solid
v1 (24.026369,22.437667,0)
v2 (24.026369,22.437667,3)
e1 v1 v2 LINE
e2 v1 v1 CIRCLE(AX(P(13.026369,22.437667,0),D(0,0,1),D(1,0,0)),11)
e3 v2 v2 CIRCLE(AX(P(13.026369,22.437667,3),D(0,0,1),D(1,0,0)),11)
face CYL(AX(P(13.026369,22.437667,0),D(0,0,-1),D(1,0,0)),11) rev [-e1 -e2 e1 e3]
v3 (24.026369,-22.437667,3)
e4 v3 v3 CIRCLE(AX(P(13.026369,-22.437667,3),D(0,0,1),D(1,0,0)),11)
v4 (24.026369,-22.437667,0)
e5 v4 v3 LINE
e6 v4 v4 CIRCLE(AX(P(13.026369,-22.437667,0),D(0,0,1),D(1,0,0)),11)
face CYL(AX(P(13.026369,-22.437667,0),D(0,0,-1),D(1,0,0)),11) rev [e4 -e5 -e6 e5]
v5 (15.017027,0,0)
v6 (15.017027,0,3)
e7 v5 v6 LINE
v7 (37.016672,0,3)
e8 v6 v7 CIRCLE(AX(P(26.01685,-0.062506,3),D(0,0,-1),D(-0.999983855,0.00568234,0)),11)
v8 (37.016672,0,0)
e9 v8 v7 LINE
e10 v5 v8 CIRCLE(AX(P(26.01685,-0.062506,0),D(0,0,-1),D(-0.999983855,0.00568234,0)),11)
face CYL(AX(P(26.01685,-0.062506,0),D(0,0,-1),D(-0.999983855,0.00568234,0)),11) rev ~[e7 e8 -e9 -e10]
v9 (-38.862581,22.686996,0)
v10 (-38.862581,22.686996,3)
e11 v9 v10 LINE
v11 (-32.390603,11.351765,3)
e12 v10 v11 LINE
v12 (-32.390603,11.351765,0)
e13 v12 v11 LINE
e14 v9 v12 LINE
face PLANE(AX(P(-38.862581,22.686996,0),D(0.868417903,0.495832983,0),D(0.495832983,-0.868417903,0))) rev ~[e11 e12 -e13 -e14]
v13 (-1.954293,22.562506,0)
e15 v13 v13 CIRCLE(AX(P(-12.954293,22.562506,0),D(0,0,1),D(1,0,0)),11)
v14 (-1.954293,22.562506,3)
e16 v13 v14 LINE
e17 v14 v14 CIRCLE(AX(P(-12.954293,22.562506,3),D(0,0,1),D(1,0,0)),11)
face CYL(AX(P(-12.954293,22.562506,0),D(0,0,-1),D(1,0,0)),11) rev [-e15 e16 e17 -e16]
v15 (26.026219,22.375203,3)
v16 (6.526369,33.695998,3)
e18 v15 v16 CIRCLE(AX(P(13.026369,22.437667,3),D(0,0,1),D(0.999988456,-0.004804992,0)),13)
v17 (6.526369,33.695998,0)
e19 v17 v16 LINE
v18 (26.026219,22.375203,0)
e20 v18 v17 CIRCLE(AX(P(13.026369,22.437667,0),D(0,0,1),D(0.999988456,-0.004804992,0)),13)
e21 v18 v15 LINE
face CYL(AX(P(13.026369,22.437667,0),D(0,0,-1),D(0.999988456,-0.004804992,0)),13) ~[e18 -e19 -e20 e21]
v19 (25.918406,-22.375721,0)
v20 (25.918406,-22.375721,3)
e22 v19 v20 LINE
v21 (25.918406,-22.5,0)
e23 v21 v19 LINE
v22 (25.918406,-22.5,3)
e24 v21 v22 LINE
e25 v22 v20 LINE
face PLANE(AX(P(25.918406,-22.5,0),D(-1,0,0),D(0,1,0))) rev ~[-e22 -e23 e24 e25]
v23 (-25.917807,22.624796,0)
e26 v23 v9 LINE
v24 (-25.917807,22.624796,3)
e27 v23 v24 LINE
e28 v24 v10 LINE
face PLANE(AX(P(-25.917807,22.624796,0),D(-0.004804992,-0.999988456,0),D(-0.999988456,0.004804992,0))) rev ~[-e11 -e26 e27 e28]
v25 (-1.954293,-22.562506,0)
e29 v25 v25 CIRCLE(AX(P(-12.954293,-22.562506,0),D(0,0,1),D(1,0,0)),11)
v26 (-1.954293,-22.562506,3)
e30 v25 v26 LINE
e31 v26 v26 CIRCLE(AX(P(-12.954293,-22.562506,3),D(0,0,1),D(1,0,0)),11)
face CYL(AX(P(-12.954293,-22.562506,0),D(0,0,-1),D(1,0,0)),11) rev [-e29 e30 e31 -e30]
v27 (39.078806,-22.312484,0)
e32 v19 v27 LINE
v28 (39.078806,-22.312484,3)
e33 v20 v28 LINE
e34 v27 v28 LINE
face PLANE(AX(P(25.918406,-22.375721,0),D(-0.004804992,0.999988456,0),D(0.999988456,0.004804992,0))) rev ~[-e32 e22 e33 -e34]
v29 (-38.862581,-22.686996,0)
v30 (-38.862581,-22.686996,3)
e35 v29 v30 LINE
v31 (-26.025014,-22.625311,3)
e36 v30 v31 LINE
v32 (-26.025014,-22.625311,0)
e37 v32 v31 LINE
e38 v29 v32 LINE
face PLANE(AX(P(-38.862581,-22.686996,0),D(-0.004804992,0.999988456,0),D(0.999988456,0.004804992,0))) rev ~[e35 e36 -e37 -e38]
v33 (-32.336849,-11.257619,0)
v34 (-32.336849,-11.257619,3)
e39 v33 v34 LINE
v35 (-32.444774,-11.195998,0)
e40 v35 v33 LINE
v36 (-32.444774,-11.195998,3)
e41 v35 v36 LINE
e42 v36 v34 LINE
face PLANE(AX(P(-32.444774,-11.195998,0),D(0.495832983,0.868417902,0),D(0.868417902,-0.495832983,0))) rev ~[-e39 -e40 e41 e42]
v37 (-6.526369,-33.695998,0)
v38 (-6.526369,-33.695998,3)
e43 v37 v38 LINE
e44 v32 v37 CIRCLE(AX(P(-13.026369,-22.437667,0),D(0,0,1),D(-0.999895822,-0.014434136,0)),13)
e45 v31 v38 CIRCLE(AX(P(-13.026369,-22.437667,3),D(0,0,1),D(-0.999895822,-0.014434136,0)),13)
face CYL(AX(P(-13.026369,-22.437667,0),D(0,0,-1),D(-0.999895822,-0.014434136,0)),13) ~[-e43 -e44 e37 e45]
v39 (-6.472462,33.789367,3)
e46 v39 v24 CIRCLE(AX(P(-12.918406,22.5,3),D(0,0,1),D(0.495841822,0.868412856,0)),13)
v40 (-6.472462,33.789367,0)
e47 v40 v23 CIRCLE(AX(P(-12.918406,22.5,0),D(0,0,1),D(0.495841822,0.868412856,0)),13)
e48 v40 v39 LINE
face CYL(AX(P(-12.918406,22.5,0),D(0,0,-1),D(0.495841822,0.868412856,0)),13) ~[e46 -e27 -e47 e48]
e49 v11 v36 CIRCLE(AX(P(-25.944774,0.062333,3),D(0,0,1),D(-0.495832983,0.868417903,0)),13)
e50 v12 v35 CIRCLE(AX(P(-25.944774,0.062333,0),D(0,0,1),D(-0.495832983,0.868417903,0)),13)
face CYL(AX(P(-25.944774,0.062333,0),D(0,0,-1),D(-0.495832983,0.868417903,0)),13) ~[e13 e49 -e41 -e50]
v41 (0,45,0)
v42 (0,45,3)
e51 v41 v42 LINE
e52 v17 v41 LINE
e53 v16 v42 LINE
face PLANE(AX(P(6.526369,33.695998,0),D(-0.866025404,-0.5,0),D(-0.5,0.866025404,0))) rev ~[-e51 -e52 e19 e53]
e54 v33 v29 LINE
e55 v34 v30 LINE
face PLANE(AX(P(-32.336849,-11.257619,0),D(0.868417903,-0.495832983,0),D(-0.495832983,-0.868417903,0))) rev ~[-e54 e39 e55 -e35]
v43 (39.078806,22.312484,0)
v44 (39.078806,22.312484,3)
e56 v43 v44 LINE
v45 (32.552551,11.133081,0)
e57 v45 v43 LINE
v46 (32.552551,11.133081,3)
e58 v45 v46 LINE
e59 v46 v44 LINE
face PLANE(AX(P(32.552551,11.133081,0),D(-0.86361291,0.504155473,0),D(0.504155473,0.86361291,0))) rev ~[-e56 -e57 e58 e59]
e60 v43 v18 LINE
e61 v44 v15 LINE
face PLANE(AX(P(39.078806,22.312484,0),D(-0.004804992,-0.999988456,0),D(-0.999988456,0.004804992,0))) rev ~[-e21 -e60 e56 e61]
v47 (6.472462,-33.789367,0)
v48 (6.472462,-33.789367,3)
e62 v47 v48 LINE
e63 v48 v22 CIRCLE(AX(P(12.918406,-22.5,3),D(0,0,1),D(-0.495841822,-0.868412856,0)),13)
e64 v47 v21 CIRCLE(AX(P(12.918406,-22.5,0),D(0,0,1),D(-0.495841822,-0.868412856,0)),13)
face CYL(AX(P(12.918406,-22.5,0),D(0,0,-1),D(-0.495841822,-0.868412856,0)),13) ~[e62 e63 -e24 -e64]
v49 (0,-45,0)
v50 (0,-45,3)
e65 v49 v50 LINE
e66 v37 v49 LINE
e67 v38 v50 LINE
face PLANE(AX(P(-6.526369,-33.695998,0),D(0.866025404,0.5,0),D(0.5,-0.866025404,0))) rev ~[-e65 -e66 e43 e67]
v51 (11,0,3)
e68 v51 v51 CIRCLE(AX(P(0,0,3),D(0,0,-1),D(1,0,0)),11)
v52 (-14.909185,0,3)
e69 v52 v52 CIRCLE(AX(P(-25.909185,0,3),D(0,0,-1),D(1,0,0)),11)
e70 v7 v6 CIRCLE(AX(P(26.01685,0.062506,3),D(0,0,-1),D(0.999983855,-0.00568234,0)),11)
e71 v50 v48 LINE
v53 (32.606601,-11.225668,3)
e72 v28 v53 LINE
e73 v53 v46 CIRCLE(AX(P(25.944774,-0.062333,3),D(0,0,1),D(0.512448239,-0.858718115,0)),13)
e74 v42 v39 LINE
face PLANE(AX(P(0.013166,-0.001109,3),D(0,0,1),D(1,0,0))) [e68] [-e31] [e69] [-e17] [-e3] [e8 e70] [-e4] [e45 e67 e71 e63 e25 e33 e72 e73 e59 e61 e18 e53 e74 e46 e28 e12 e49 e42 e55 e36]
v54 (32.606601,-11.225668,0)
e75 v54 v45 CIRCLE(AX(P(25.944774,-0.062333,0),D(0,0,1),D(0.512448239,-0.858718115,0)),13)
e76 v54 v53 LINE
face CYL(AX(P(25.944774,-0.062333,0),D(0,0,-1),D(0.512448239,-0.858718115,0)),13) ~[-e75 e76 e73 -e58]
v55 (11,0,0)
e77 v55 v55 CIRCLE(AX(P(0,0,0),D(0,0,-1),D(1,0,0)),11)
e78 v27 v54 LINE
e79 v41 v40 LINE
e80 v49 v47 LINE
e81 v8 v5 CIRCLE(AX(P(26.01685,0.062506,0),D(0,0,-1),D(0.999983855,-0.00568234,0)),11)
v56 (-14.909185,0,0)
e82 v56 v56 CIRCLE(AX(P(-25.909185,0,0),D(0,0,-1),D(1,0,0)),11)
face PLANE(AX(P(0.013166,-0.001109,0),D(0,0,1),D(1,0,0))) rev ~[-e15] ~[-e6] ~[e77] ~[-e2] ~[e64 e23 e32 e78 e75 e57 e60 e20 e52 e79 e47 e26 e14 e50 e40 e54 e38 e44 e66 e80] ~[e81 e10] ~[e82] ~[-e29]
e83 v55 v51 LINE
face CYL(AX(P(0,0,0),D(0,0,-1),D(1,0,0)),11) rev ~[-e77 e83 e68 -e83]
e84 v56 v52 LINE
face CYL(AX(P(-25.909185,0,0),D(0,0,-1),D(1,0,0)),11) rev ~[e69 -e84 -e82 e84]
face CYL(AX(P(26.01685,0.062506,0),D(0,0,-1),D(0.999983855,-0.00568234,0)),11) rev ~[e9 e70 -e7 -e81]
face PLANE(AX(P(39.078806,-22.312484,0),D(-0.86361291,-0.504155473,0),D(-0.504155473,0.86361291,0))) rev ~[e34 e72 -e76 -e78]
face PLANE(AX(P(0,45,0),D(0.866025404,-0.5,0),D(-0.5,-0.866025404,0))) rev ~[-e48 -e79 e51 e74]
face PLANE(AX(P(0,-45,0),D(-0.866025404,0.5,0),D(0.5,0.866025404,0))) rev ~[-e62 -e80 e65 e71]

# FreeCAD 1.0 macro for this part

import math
import FreeCAD as App
import Part
import Sketcher
Q = App.Units.Quantity

doc = App.newDocument("Part")
body = doc.addObject("PartDesign::Body", "Body")

# Sketch on XY plane
sketch1 = doc.addObject("Sketcher::SketchObject", "Sketch")
body.addObject(sketch1)
sketch1.AttachmentSupport = (doc.XY_Plane, [""])
sketch1.MapMode = "FlatFace"
sketch1.addGeometry([
    Part.LineSegment(App.Vector(6.526369, 33.695998, 0), App.Vector(0, 45, 0)),  # 0
    Part.LineSegment(App.Vector(0, 45, 0), App.Vector(-6.472462, 33.789367, 0)),  # 1
    Part.ArcOfCircle(Part.Circle(App.Vector(-12.918406, 22.5, 0), App.Vector(0, 0, 1), 13), math.radians(60.274724), math.radians(179.44997)),  # 2
    Part.LineSegment(App.Vector(-25.917807, 22.624796, 0), App.Vector(-38.862581, 22.686996, 0)),  # 3
    Part.LineSegment(App.Vector(-38.862581, 22.686996, 0), App.Vector(-32.390603, 11.351765, 0)),  # 4
    Part.ArcOfCircle(Part.Circle(App.Vector(-25.944774, 0.062333, 0), App.Vector(0, 0, 1), 13), math.radians(119.724693), math.radians(240)),  # 5
    Part.LineSegment(App.Vector(-32.444774, -11.195998, 0), App.Vector(-32.336849, -11.257619, 0)),  # 6
    Part.LineSegment(App.Vector(-32.336849, -11.257619, 0), App.Vector(-38.862581, -22.686996, 0)),  # 7
    Part.LineSegment(App.Vector(-38.862581, -22.686996, 0), App.Vector(-26.025014, -22.625311, 0)),  # 8
    Part.ArcOfCircle(Part.Circle(App.Vector(-13.026369, -22.437667, 0), App.Vector(0, 0, 1), 13), math.radians(-179.172956), math.radians(-60)),  # 9
    Part.LineSegment(App.Vector(-6.526369, -33.695998, 0), App.Vector(0, -45, 0)),  # 10
    Part.LineSegment(App.Vector(0, -45, 0), App.Vector(6.472462, -33.789367, 0)),  # 11
    Part.ArcOfCircle(Part.Circle(App.Vector(12.918406, -22.5, 0), App.Vector(0, 0, 1), 13), math.radians(-119.725276), math.radians(0)),  # 12
    Part.LineSegment(App.Vector(25.918406, -22.5, 0), App.Vector(25.918406, -22.375721, 0)),  # 13
    Part.LineSegment(App.Vector(25.918406, -22.375721, 0), App.Vector(39.078806, -22.312484, 0)),  # 14
    Part.LineSegment(App.Vector(39.078806, -22.312484, 0), App.Vector(32.606601, -11.225668, 0)),  # 15
    Part.ArcOfCircle(Part.Circle(App.Vector(25.944774, -0.062333, 0), App.Vector(0, 0, 1), 13), math.radians(-59.172956), math.radians(59.44997)),  # 16
    Part.LineSegment(App.Vector(32.552551, 11.133081, 0), App.Vector(39.078806, 22.312484, 0)),  # 17
    Part.LineSegment(App.Vector(39.078806, 22.312484, 0), App.Vector(26.026219, 22.375203, 0)),  # 18
    Part.ArcOfCircle(Part.Circle(App.Vector(13.026369, 22.437667, 0), App.Vector(0, 0, 1), 13), math.radians(-0.275307), math.radians(120)),  # 19
    Part.Circle(App.Vector(-12.954293, -22.562506, 0), App.Vector(0, 0, 1), 11),  # 20
    Part.Circle(App.Vector(-25.909185, 0, 0), App.Vector(0, 0, 1), 11),  # 21
    Part.Circle(App.Vector(13.026369, -22.437667, 0), App.Vector(0, 0, 1), 11),  # 22
    Part.ArcOfCircle(Part.Circle(App.Vector(26.01685, 0.062506, 0), App.Vector(0, 0, 1), 11), math.radians(-179.674424), math.radians(-0.325576)),  # 23
    Part.ArcOfCircle(Part.Circle(App.Vector(26.01685, -0.062506, 0), App.Vector(0, 0, 1), 11), math.radians(0.325576), math.radians(179.674424)),  # 24
    Part.Circle(App.Vector(0, 0, 0), App.Vector(0, 0, 1), 11),  # 25
    Part.Circle(App.Vector(-12.954293, 22.562506, 0), App.Vector(0, 0, 1), 11),  # 26
    Part.Circle(App.Vector(13.026369, 22.437667, 0), App.Vector(0, 0, 1), 11),  # 27
], False)
sketch1.addConstraint([
    Sketcher.Constraint("Coincident", 0, 2, 1, 1),
    Sketcher.Constraint("Coincident", 1, 2, 2, 1),
    Sketcher.Constraint("Coincident", 2, 2, 3, 1),
    Sketcher.Constraint("Coincident", 3, 2, 4, 1),
    Sketcher.Constraint("Coincident", 4, 2, 5, 1),
    Sketcher.Constraint("Coincident", 5, 2, 6, 1),
    Sketcher.Constraint("Coincident", 6, 2, 7, 1),
    Sketcher.Constraint("Coincident", 7, 2, 8, 1),
    Sketcher.Constraint("Coincident", 8, 2, 9, 1),
    Sketcher.Constraint("Coincident", 9, 2, 10, 1),
    Sketcher.Constraint("Coincident", 10, 2, 11, 1),
    Sketcher.Constraint("Coincident", 11, 2, 12, 1),
    Sketcher.Constraint("Coincident", 12, 2, 13, 1),
    Sketcher.Constraint("Coincident", 13, 2, 14, 1),
    Sketcher.Constraint("Coincident", 14, 2, 15, 1),
    Sketcher.Constraint("Coincident", 15, 2, 16, 1),
    Sketcher.Constraint("Coincident", 16, 2, 17, 1),
    Sketcher.Constraint("Coincident", 17, 2, 18, 1),
    Sketcher.Constraint("Coincident", 18, 2, 19, 1),
    Sketcher.Constraint("Coincident", 19, 2, 0, 1),
    Sketcher.Constraint("Coincident", 23, 1, 24, 2),
    Sketcher.Constraint("Coincident", 24, 1, 23, 2),
    Sketcher.Constraint("Vertical", 13),
    Sketcher.Constraint("Coincident", 25, 3, -1, 1),
    Sketcher.Constraint("Coincident", 27, 3, 19, 3),
    Sketcher.Constraint("PointOnObject", 21, 3, -1),
    Sketcher.Constraint("PointOnObject", 0, 2, -2),
    Sketcher.Constraint("PointOnObject", 10, 2, -2),
    Sketcher.Constraint("PointOnObject", 23, 1, -1),
    Sketcher.Constraint("PointOnObject", 24, 1, -1),
    Sketcher.Constraint("Diameter", 20, Q("22 mm")),
    Sketcher.Constraint("Diameter", 21, Q("22 mm")),
    Sketcher.Constraint("Diameter", 22, Q("22 mm")),
    Sketcher.Constraint("Diameter", 25, Q("22 mm")),
    Sketcher.Constraint("Diameter", 26, Q("22 mm")),
    Sketcher.Constraint("Diameter", 27, Q("22 mm")),
    Sketcher.Constraint("Radius", 2, Q("13 mm")),
    Sketcher.Constraint("Radius", 5, Q("13 mm")),
    Sketcher.Constraint("Radius", 9, Q("13 mm")),
    Sketcher.Constraint("Radius", 12, Q("13 mm")),
    Sketcher.Constraint("Radius", 16, Q("13 mm")),
    Sketcher.Constraint("Radius", 19, Q("13 mm")),
    Sketcher.Constraint("Radius", 23, Q("11 mm")),
    Sketcher.Constraint("Radius", 24, Q("11 mm")),
    Sketcher.Constraint("DistanceY", -1, 1, 0, 2, Q("45 mm")),
    Sketcher.Constraint("DistanceY", 10, 2, -1, 1, Q("45 mm")),
    Sketcher.Constraint("DistanceY", 12, 3, 2, 3, Q("45 mm")),
    Sketcher.Constraint("DistanceY", -1, 1, 2, 3, Q("22.5 mm")),
    Sketcher.Constraint("DistanceY", 12, 2, -1, 1, Q("22.5 mm")),
    Sketcher.Constraint("DistanceY", 9, 3, 5, 3, Q("22.5 mm")),
    Sketcher.Constraint("DistanceY", 16, 3, 19, 3, Q("22.5 mm")),
    Sketcher.Constraint("DistanceX", 5, 2, 5, 3, Q("6.5 mm")),
    Sketcher.Constraint("DistanceX", 9, 3, 9, 2, Q("6.5 mm")),
    Sketcher.Constraint("DistanceX", 19, 2, 19, 3, Q("6.5 mm")),
    Sketcher.Constraint("DistanceY", 7, 2, 5, 2, Q("11.490999 mm")),
    Sketcher.Constraint("DistanceY", 13, 1, 13, 2, Q("0.124279 mm")),
    Sketcher.Constraint("DistanceX", -1, 1, 15, 2, Q("32.606601 mm")),
    Sketcher.Constraint("DistanceX", 20, 3, 12, 3, Q("25.872699 mm")),
    Sketcher.Constraint("DistanceY", 19, 3, 1, 2, Q("11.3517 mm")),
    Sketcher.Constraint("DistanceX", 2, 2, 2, 3, Q("12.999401 mm")),
    Sketcher.Constraint("DistanceY", 2, 2, 3, 2, Q("0.0622 mm")),
    Sketcher.Constraint("DistanceY", 11, 2, 22, 3, Q("11.3517 mm")),
    Sketcher.Constraint("DistanceX", 13, 2, 14, 2, Q("13.1604 mm")),
    Sketcher.Constraint("DistanceX", 23, 3, 16, 2, Q("6.535702 mm")),
    Sketcher.Constraint("Distance", 7, Q("13.161149 mm")),
    Sketcher.Constraint("Distance", 14, Q("13.160552 mm")),
    Sketcher.Constraint("DistanceX", 9, 3, -1, 1, Q("13.026369 mm")),
    Sketcher.Constraint("DistanceX", -1, 1, 19, 3, Q("13.026369 mm")),
    Sketcher.Constraint("DistanceX", -1, 1, 22, 3, Q("13.026369 mm")),
    Sketcher.Constraint("DistanceX", -1, 1, 23, 3, Q("26.01685 mm")),
    Sketcher.Constraint("DistanceX", 1, 2, -1, 1, Q("6.472462 mm")),
    Sketcher.Constraint("DistanceX", 3, 2, -1, 1, Q("38.862581 mm")),
    Sketcher.Constraint("DistanceX", 6, 2, -1, 1, Q("32.336849 mm")),
    Sketcher.Constraint("DistanceY", 6, 2, -1, 1, Q("11.257619 mm")),
    Sketcher.Constraint("DistanceX", 7, 2, -1, 1, Q("38.862581 mm")),
    Sketcher.Constraint("DistanceY", 8, 2, -1, 1, Q("22.625311 mm")),
    Sketcher.Constraint("DistanceX", -1, 1, 11, 2, Q("6.472462 mm")),
    Sketcher.Constraint("DistanceY", 15, 2, -1, 1, Q("11.225668 mm")),
    Sketcher.Constraint("DistanceY", -1, 1, 16, 2, Q("11.133081 mm")),
    Sketcher.Constraint("DistanceX", -1, 1, 18, 2, Q("26.026219 mm")),
    Sketcher.Constraint("DistanceX", 5, 3, 2, 3, Q("13.026369 mm")),
    Sketcher.Constraint("DistanceX", 5, 3, 12, 3, Q("38.86318 mm")),
    Sketcher.Constraint("DistanceY", 20, 3, 9, 3, Q("0.124838 mm")),
    Sketcher.Constraint("DistanceX", 5, 3, 21, 3, Q("0.035589 mm")),
    Sketcher.Constraint("DistanceY", 16, 3, 23, 3, Q("0.124838 mm")),
    Sketcher.Constraint("DistanceY", 19, 3, 26, 3, Q("0.124838 mm")),
    Sketcher.Constraint("DistanceX", 5, 3, 26, 3, Q("12.990481 mm")),
    Sketcher.Constraint("DistanceY", 4, 2, 2, 2, Q("11.273031 mm")),
    Sketcher.Constraint("DistanceY", 23, 3, 17, 2, Q("22.249978 mm")),
    Sketcher.Constraint("DistanceX", 16, 3, 17, 2, Q("13.134031 mm")),
])
pad1 = doc.addObject("PartDesign::Pad", "Pad")
body.addObject(pad1)
pad1.Profile = sketch1
pad1.Length = 3

doc.recompute()
